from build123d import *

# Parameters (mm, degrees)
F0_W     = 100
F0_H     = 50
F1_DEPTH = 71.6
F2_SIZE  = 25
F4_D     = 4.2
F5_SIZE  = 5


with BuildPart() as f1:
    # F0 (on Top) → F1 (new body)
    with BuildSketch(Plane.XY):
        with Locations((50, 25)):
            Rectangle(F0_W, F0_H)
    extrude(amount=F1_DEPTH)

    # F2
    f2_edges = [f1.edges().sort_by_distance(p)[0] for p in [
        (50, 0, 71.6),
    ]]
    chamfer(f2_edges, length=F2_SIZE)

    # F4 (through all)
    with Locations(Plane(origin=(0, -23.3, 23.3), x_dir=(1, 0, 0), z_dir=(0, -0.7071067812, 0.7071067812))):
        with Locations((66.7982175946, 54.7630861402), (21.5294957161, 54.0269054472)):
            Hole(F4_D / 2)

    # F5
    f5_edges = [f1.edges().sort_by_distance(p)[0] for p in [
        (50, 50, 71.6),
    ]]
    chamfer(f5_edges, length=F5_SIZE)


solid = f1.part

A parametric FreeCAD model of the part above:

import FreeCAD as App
import Part
import Sketcher

V = App.Vector


def edges_at(feature, points):
    """Names of the edges that pass closest to the given points."""
    edges = feature.Shape.Edges
    near = lambda p: min(range(len(edges)), key=lambda i: edges[i].distToShape(Part.Vertex(*p))[0])
    return sorted({f"Edge{near(p) + 1}" for p in points})


def add_polygon(sketch, points):
    """Adds a closed chain of lines whose ends are joined by coincident constraints."""
    first, n = sketch.GeometryCount, len(points)
    for a, b in zip(points, points[1:] + points[:1]):
        sketch.addGeometry(Part.LineSegment(App.Vector(*a, 0), App.Vector(*b, 0)), False)
    for i in range(n):
        sketch.addConstraint(Sketcher.Constraint("Coincident", first + i, 2, first + (i + 1) % n, 1))

doc = App.newDocument("Part")
body = doc.addObject("PartDesign::Body", "Body")

# Sketch on XY plane
sketch1 = body.newObject("Sketcher::SketchObject", "Sketch")
sketch1.AttachmentSupport = (doc.getObject("XY_Plane"), [""])
sketch1.MapMode = "FlatFace"
add_polygon(sketch1, [(0, 50), (0, 0), (100, 0), (100, 50)])  # lines 0-3
sketch1.addConstraint(Sketcher.Constraint("Vertical", 0))
sketch1.addConstraint(Sketcher.Constraint("Horizontal", 1))
sketch1.addConstraint(Sketcher.Constraint("Vertical", 2))
sketch1.addConstraint(Sketcher.Constraint("Horizontal", 3))
sketch1.addConstraint(Sketcher.Constraint("Coincident", 0, 2, -1, 1))
sketch1.addConstraint(Sketcher.Constraint("DistanceX", 1, 1, 1, 2, 100.0))
sketch1.addConstraint(Sketcher.Constraint("DistanceY", 0, 2, 0, 1, 50.0))
pad1 = body.newObject("PartDesign::Pad", "Pad")
pad1.Profile = sketch1
pad1.Length = 71.6
doc.recompute()

chamfer = body.newObject("PartDesign::Chamfer", "Chamfer")
chamfer.Base = (pad1, edges_at(pad1, [(50, 0, 71.6)]))
chamfer.Size = 25

# Sketch on an angled plane
sketch2 = body.newObject("Sketcher::SketchObject", "Sketch001")
sketch2.Placement = App.Placement(V(0, -23.3, 23.3), App.Rotation(V(1, 0, 0), V(0, 0.707106781, 0.707106781), V(0, -0.707106781, 0.707106781), "ZXY"))
sketch2.addGeometry(Part.Circle(V(66.798218, 54.763086, 0), V(0, 0, 1), 2.1), False)
sketch2.addGeometry(Part.Circle(V(21.529496, 54.026905, 0), V(0, 0, 1), 2.1), False)
sketch2.addConstraint(Sketcher.Constraint("Equal", 0, 1))
sketch2.addConstraint(Sketcher.Constraint("Diameter", 0, 4.2))
sketch2.addConstraint(Sketcher.Constraint("DistanceX", 1, 3, 0, 3, 45.268722))
sketch2.addConstraint(Sketcher.Constraint("DistanceY", 1, 3, 0, 3, 0.736181))
sketch2.addConstraint(Sketcher.Constraint("DistanceX", -1, 1, 0, 3, 66.798218))
sketch2.addConstraint(Sketcher.Constraint("DistanceY", -1, 1, 0, 3, 54.763086))
doc.recompute()
hole = body.newObject("PartDesign::Hole", "Hole")
hole.Profile = sketch2
hole.ThreadType = "None"
hole.Diameter = 4.2
hole.DepthType = "ThroughAll"
doc.recompute()

chamfer2 = body.newObject("PartDesign::Chamfer", "Chamfer001")
chamfer2.Base = (hole, edges_at(hole, [(50, 50, 71.6)]))
chamfer2.Size = 5

doc.recompute()
